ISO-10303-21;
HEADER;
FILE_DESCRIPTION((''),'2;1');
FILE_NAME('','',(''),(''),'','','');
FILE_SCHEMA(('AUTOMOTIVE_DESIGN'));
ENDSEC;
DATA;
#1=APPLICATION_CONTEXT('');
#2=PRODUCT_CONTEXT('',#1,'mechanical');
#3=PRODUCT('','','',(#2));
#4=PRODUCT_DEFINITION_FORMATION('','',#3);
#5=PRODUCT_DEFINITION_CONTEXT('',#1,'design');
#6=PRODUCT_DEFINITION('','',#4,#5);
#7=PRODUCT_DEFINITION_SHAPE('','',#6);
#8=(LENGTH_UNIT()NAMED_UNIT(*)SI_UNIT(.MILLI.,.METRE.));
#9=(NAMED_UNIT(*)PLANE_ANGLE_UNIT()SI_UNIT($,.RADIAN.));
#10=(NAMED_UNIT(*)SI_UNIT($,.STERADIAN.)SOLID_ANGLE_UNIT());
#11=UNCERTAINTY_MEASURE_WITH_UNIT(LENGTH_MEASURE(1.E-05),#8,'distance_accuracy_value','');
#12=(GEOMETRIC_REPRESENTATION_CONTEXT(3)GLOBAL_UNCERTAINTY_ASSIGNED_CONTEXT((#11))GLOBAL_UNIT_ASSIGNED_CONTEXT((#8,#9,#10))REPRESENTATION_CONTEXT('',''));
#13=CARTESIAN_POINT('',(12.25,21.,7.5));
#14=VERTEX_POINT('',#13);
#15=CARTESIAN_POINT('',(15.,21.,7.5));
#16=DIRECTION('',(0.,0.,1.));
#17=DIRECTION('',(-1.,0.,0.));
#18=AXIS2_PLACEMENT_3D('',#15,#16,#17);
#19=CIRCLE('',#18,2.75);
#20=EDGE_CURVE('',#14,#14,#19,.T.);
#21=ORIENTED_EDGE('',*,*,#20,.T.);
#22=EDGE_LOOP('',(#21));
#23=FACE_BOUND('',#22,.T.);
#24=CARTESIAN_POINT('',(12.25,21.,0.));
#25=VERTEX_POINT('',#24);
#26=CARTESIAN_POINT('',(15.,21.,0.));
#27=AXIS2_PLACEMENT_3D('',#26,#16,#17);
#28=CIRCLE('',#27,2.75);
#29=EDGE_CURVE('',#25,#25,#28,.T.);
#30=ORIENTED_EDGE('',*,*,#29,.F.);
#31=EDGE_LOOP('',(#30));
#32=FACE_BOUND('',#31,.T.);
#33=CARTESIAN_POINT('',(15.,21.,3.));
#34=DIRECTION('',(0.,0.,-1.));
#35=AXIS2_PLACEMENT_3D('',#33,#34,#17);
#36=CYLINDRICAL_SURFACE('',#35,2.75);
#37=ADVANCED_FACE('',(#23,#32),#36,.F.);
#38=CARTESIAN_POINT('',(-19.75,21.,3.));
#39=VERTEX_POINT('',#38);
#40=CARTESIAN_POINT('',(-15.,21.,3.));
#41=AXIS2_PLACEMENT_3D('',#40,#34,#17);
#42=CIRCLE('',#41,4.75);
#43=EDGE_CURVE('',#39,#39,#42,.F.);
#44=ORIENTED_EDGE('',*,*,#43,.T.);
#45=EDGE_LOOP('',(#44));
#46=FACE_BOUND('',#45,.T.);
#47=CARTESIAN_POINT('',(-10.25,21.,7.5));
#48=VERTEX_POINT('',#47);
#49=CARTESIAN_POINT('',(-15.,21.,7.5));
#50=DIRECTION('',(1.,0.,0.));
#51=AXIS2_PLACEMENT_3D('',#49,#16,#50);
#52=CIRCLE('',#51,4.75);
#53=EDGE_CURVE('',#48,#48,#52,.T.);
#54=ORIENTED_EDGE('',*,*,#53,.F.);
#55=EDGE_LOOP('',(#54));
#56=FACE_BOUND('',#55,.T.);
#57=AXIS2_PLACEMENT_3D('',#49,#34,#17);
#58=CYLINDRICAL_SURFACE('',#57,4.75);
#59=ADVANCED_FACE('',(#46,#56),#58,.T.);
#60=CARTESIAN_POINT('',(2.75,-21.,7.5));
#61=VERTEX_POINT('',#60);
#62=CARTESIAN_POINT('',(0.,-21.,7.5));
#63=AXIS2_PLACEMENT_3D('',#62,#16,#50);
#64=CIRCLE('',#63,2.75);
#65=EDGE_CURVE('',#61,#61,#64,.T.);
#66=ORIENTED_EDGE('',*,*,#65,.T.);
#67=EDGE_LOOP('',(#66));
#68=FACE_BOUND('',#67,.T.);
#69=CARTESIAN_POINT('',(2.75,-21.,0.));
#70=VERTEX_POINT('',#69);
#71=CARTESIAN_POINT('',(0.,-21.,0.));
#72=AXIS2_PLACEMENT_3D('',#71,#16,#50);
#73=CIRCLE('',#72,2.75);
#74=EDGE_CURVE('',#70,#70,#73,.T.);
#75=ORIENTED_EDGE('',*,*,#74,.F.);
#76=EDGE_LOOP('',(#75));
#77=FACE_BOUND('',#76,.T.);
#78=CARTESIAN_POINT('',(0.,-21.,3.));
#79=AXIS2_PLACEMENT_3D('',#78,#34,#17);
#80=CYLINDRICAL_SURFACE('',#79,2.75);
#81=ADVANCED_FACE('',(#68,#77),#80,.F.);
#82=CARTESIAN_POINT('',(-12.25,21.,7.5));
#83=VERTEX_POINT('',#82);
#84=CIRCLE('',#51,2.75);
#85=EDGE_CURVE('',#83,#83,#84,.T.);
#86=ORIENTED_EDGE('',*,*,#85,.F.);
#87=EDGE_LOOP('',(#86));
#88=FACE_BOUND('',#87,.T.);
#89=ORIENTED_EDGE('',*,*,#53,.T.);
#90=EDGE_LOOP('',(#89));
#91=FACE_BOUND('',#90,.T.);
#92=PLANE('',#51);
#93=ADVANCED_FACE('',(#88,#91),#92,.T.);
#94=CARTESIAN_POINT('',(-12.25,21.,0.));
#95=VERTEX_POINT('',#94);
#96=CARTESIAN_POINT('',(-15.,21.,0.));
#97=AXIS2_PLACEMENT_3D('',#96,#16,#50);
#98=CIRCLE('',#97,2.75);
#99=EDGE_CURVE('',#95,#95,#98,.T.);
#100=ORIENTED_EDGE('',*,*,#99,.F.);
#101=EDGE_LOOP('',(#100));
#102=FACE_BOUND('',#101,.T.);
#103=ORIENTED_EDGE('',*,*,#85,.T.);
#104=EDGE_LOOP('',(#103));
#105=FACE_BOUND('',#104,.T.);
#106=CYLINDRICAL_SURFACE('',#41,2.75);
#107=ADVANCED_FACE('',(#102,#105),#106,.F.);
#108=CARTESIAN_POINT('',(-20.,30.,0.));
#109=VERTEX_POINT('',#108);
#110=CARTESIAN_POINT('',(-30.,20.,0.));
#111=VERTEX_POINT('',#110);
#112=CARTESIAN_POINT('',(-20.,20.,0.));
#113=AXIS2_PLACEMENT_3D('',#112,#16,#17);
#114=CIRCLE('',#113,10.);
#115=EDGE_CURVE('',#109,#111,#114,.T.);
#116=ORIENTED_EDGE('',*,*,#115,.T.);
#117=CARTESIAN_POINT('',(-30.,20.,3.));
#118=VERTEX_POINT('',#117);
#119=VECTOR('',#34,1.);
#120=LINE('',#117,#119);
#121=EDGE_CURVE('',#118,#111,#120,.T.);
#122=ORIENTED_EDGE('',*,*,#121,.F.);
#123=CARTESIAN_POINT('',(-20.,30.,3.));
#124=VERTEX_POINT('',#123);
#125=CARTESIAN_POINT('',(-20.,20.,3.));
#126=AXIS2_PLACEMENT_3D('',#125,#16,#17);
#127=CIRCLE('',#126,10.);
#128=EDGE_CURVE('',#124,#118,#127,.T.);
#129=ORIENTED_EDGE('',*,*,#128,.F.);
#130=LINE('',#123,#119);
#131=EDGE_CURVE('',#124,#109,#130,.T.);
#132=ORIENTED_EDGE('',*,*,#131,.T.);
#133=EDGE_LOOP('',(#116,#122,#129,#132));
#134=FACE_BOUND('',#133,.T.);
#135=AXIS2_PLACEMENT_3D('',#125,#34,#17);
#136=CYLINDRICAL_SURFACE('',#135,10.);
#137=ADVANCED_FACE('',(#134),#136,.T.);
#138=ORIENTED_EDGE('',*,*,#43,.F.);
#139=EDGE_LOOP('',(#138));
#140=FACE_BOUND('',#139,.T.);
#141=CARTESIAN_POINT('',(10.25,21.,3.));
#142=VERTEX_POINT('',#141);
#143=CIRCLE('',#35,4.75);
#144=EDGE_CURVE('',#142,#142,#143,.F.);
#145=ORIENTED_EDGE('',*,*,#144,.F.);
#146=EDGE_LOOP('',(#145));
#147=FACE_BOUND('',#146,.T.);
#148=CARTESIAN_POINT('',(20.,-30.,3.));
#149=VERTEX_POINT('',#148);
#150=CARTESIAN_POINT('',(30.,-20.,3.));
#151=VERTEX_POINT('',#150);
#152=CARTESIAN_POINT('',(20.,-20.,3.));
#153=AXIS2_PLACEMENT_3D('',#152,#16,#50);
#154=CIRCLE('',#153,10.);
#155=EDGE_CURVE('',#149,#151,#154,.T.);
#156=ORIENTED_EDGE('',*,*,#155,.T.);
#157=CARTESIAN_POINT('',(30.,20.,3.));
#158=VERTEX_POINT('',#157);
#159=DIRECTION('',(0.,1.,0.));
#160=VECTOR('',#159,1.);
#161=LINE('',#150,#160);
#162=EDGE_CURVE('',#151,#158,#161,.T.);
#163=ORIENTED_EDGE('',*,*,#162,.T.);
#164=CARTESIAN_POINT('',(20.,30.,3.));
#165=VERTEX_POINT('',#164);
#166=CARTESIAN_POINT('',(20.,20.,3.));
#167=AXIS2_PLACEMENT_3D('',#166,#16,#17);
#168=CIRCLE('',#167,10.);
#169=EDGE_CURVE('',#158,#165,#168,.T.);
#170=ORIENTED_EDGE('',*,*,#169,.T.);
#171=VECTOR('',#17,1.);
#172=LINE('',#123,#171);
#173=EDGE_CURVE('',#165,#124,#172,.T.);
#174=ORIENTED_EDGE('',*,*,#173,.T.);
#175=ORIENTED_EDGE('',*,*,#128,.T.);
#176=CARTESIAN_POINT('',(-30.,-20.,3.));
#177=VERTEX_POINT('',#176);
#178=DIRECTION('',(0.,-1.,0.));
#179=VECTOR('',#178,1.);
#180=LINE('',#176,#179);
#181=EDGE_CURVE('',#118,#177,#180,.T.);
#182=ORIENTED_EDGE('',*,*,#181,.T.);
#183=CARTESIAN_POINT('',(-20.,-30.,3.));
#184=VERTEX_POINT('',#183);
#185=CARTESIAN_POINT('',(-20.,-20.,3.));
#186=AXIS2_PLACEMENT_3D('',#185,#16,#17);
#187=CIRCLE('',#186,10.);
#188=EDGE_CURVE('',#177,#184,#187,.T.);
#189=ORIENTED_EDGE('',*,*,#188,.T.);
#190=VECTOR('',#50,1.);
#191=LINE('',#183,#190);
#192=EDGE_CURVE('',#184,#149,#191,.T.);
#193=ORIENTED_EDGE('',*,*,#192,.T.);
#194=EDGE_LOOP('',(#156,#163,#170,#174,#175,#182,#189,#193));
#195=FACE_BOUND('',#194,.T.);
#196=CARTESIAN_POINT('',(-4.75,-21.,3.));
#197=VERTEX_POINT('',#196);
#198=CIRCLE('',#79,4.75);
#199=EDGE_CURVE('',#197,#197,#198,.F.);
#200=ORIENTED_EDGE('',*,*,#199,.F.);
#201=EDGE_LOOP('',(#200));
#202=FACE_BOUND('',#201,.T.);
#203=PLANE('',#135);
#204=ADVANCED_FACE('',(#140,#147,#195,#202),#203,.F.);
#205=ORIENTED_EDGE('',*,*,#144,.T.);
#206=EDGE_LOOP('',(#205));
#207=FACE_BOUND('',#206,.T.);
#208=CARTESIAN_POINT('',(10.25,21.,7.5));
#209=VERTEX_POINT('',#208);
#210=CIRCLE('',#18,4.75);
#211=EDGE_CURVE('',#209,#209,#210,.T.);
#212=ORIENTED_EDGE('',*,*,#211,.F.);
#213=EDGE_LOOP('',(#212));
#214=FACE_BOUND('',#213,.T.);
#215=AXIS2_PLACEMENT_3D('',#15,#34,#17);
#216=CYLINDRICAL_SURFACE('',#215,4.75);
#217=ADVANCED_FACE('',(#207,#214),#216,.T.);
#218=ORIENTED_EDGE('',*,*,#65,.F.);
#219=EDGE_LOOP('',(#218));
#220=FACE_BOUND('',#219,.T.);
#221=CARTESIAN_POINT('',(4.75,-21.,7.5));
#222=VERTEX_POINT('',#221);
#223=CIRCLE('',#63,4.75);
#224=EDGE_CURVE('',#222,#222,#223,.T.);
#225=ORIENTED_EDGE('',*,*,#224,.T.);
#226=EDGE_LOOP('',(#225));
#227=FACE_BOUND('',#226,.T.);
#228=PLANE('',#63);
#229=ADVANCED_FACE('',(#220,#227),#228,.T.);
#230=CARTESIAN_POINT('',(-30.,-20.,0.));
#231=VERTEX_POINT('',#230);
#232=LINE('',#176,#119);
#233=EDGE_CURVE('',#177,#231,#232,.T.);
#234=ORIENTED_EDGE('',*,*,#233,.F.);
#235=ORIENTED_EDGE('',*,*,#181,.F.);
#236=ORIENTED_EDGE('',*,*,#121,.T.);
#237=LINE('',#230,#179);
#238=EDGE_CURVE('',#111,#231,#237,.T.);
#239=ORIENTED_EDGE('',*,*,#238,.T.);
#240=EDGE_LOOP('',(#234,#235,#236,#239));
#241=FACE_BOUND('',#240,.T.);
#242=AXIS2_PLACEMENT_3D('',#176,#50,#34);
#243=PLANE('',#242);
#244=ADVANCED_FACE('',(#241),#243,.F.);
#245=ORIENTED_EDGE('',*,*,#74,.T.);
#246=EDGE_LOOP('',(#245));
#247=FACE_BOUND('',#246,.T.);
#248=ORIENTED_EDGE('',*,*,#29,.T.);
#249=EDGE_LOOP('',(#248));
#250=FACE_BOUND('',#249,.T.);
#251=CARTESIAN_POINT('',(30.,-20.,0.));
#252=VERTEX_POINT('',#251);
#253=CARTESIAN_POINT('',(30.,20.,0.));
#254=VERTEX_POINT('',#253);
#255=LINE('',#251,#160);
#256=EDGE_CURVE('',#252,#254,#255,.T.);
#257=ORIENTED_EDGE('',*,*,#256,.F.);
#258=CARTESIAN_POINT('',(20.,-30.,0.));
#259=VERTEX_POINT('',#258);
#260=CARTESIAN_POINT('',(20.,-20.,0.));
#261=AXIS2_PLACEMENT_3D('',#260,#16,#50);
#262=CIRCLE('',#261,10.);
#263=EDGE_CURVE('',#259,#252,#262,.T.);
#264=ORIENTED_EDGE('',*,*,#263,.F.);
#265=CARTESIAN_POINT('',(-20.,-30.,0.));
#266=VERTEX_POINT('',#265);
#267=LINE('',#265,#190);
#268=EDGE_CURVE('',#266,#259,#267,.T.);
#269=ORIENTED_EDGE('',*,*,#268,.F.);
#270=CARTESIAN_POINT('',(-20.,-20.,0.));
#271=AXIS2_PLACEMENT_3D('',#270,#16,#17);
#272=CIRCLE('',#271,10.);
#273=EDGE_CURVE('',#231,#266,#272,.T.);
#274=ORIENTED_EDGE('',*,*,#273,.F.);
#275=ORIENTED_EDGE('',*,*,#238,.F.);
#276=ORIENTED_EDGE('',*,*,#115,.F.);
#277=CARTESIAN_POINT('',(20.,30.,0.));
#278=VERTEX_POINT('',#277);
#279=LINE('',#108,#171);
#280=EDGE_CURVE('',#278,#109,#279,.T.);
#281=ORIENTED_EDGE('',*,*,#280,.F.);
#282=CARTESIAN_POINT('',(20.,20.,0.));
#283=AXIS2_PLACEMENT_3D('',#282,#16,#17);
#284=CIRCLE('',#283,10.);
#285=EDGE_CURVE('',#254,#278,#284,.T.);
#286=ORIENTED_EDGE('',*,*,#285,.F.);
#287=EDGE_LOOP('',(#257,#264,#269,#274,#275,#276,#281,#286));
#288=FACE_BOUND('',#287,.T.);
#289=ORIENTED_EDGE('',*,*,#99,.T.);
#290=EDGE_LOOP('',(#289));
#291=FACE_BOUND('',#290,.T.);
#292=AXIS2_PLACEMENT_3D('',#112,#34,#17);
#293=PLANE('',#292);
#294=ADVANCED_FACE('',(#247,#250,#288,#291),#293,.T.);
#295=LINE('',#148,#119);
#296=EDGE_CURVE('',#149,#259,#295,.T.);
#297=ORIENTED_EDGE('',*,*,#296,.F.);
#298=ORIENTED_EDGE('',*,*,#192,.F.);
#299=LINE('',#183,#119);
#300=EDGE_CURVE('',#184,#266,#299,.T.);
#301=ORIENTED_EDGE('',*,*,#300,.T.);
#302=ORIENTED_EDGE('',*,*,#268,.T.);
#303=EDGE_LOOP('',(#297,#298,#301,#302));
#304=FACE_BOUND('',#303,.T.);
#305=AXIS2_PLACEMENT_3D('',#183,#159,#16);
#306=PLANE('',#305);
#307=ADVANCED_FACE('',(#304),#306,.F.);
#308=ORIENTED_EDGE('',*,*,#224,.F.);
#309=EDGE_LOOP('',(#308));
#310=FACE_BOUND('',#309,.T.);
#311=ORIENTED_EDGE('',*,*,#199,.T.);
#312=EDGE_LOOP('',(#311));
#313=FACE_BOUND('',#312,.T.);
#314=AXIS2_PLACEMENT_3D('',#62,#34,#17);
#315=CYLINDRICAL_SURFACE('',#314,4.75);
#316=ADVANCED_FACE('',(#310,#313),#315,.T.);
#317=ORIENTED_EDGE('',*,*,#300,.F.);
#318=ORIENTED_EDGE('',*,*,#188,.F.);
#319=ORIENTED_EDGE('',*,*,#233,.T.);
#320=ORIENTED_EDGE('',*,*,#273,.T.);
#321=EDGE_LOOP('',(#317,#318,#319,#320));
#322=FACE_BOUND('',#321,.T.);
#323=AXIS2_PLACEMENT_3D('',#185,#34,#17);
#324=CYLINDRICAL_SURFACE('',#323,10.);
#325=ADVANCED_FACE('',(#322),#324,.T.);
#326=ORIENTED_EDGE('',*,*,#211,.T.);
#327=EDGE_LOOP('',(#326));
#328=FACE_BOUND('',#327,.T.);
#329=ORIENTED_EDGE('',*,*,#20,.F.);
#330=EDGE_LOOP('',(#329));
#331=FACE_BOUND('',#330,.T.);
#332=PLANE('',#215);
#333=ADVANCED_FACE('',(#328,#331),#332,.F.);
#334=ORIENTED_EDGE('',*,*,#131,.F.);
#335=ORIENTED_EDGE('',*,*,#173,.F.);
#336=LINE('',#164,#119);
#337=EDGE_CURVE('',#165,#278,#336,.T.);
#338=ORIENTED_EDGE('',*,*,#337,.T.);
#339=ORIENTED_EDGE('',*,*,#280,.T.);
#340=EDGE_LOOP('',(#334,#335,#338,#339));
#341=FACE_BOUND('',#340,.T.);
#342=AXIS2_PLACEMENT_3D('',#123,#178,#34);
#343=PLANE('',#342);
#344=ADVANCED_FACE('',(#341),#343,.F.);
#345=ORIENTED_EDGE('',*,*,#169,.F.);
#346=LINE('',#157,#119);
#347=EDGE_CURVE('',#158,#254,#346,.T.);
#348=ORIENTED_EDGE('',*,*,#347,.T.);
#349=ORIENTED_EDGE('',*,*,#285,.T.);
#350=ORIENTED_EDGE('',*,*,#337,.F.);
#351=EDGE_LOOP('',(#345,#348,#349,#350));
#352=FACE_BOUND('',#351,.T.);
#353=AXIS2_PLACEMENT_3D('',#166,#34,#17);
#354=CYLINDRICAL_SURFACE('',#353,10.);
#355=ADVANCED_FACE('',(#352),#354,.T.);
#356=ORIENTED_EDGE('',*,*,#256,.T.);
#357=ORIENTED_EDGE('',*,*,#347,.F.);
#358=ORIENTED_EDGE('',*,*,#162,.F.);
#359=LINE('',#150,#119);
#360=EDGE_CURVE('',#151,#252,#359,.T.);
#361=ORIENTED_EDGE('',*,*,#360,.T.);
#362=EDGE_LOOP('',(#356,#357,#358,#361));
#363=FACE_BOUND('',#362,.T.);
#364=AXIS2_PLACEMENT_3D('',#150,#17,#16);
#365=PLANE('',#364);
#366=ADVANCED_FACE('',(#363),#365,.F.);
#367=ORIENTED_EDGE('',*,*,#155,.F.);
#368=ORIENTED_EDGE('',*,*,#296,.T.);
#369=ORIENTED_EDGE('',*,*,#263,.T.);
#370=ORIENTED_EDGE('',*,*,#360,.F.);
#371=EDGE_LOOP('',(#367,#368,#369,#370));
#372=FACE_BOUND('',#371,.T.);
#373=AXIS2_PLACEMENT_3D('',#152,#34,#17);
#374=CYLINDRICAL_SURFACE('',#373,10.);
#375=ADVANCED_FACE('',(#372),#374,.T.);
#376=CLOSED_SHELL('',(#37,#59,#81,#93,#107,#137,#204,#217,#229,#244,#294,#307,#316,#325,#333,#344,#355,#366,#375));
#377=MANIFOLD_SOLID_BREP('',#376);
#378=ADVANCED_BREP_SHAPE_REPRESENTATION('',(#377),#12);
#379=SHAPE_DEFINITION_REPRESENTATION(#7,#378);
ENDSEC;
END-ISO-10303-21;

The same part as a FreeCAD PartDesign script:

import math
import FreeCAD as App
import Part
import Sketcher
from FreeCAD import Vector
Q = App.Units.Quantity

doc = App.newDocument("Part")
params = doc.addObject("Spreadsheet::Sheet", "Params")
for row, (alias, value) in enumerate([
    ("sketch1_radius", "10 mm"),
    ("sketch1_diameter", "5.5 mm"),
    ("sketch1_width", "40 mm"),
    ("pad1_length", "3 mm"),
    ("sketch2_diameter", "9.5 mm"),
    ("sketch2_diameter2", "5.5 mm"),
    ("pad2_length", "4.5 mm"),
], start=1):
    params.set(f"A{row}", alias)
    params.set(f"B{row}", "=" + value)
    params.setAlias(f"B{row}", alias)

body = doc.addObject("PartDesign::Body", "Body")

# Sketch on XY plane
sketch1 = doc.addObject("Sketcher::SketchObject", "Sketch")
body.addObject(sketch1)
sketch1.AttachmentSupport = (doc.XY_Plane, [""])
sketch1.MapMode = "FlatFace"
sketch1.addGeometry(Part.LineSegment(Vector(-20, -30, 0), Vector(20, -30, 0)), False)
sketch1.addGeometry(Part.ArcOfCircle(Part.Circle(Vector(20, -20, 0), Vector(0, 0, 1), 10), math.radians(-90), math.radians(0)), False)
sketch1.addGeometry(Part.LineSegment(Vector(30, -20, 0), Vector(30, 20, 0)), False)
sketch1.addGeometry(Part.ArcOfCircle(Part.Circle(Vector(20, 20, 0), Vector(0, 0, 1), 10), math.radians(0), math.radians(90)), False)
sketch1.addGeometry(Part.LineSegment(Vector(20, 30, 0), Vector(-20, 30, 0)), False)
sketch1.addGeometry(Part.ArcOfCircle(Part.Circle(Vector(-20, 20, 0), Vector(0, 0, 1), 10), math.radians(90), math.radians(180)), False)
sketch1.addGeometry(Part.LineSegment(Vector(-30, 20, 0), Vector(-30, -20, 0)), False)
sketch1.addGeometry(Part.ArcOfCircle(Part.Circle(Vector(-20, -20, 0), Vector(0, 0, 1), 10), math.radians(180), math.radians(270)), False)
sketch1.addGeometry(Part.Circle(Vector(0, -21, 0), Vector(0, 0, 1), 2.8), False)
sketch1.addGeometry(Part.Circle(Vector(-15, 21, 0), Vector(0, 0, 1), 2.8), False)
sketch1.addGeometry(Part.Circle(Vector(15, 21, 0), Vector(0, 0, 1), 2.8), False)
sketch1.addConstraint(Sketcher.Constraint("Tangent", 0, 2, 1, 1))
sketch1.addConstraint(Sketcher.Constraint("Tangent", 1, 2, 2, 1))
sketch1.addConstraint(Sketcher.Constraint("Tangent", 2, 2, 3, 1))
sketch1.addConstraint(Sketcher.Constraint("Tangent", 3, 2, 4, 1))
sketch1.addConstraint(Sketcher.Constraint("Tangent", 4, 2, 5, 1))
sketch1.addConstraint(Sketcher.Constraint("Tangent", 5, 2, 6, 1))
sketch1.addConstraint(Sketcher.Constraint("Tangent", 6, 2, 7, 1))
sketch1.addConstraint(Sketcher.Constraint("Tangent", 7, 2, 0, 1))
sketch1.addConstraint(Sketcher.Constraint("Horizontal", 0))
sketch1.addConstraint(Sketcher.Constraint("Vertical", 2))
sketch1.addConstraint(Sketcher.Constraint("Horizontal", 4))
sketch1.addConstraint(Sketcher.Constraint("Vertical", 6))
sketch1.addConstraint(Sketcher.Constraint("Equal", 1, 3))
sketch1.addConstraint(Sketcher.Constraint("Equal", 3, 5))
sketch1.addConstraint(Sketcher.Constraint("Equal", 5, 7))
sketch1.addConstraint(Sketcher.Constraint("Equal", 8, 9))
sketch1.addConstraint(Sketcher.Constraint("Equal", 9, 10))
sketch1.addConstraint(Sketcher.Constraint("Symmetric", 1, 3, 5, 3, -1, 1))
sketch1.addConstraint(Sketcher.Constraint("Symmetric", 9, 3, 10, 3, -2))
sketch1.addConstraint(Sketcher.Constraint("PointOnObject", 8, 3, -2))
sketch1.addConstraint(Sketcher.Constraint("Equal", 4, 2))
sketch1.addConstraint(Sketcher.Constraint("Radius", 1, Q("10 mm")))
sketch1.addConstraint(Sketcher.Constraint("Diameter", 8, Q("5.5 mm")))
sketch1.addConstraint(Sketcher.Constraint("DistanceX", 0, 1, 0, 2, Q("40 mm")))
sketch1.addConstraint(Sketcher.Constraint("DistanceY", 8, 3, -1, 1, Q("21 mm")))
sketch1.addConstraint(Sketcher.Constraint("DistanceX", 9, 3, -1, 1, Q("15 mm")))
sketch1.addConstraint(Sketcher.Constraint("DistanceY", -1, 1, 9, 3, Q("21 mm")))
sketch1.setExpression("Constraints[21]", "Params.sketch1_radius")
sketch1.setExpression("Constraints[22]", "Params.sketch1_diameter")
sketch1.setExpression("Constraints[23]", "Params.sketch1_width")
pad1 = doc.addObject("PartDesign::Pad", "Pad")
body.addObject(pad1)
pad1.Profile = sketch1
pad1.setExpression("Length", "Params.pad1_length")

# Sketch on XY plane
sketch2 = doc.addObject("Sketcher::SketchObject", "Sketch001")
body.addObject(sketch2)
sketch2.AttachmentSupport = (doc.XY_Plane, [""])
sketch2.MapMode = "FlatFace"
sketch2.AttachmentOffset = App.Placement(Vector(0, 0, 3), App.Rotation())
sketch2.addGeometry(Part.Circle(Vector(-15, 21, 0), Vector(0, 0, 1), 4.8), False)
sketch2.addGeometry(Part.Circle(Vector(-15, 21, 0), Vector(0, 0, 1), 2.8), False)
sketch2.addGeometry(Part.Circle(Vector(0, -21, 0), Vector(0, 0, 1), 4.8), False)
sketch2.addGeometry(Part.Circle(Vector(0, -21, 0), Vector(0, 0, 1), 2.8), False)
sketch2.addGeometry(Part.Circle(Vector(15, 21, 0), Vector(0, 0, 1), 4.8), False)
sketch2.addGeometry(Part.Circle(Vector(15, 21, 0), Vector(0, 0, 1), 2.8), False)
sketch2.addConstraint(Sketcher.Constraint("Coincident", 1, 3, 0, 3))
sketch2.addConstraint(Sketcher.Constraint("Coincident", 3, 3, 2, 3))
sketch2.addConstraint(Sketcher.Constraint("Coincident", 5, 3, 4, 3))
sketch2.addConstraint(Sketcher.Constraint("Equal", 0, 2))
sketch2.addConstraint(Sketcher.Constraint("Equal", 1, 3))
sketch2.addConstraint(Sketcher.Constraint("Equal", 2, 4))
sketch2.addConstraint(Sketcher.Constraint("Equal", 3, 5))
sketch2.addConstraint(Sketcher.Constraint("Symmetric", 0, 3, 4, 3, -2))
sketch2.addConstraint(Sketcher.Constraint("PointOnObject", 2, 3, -2))
sketch2.addConstraint(Sketcher.Constraint("Diameter", 0, Q("9.5 mm")))
sketch2.addConstraint(Sketcher.Constraint("Diameter", 1, Q("5.5 mm")))
sketch2.addConstraint(Sketcher.Constraint("DistanceX", 0, 3, -1, 1, Q("15 mm")))
sketch2.addConstraint(Sketcher.Constraint("DistanceY", -1, 1, 0, 3, Q("21 mm")))
sketch2.addConstraint(Sketcher.Constraint("DistanceY", 2, 3, -1, 1, Q("21 mm")))
sketch2.setExpression("Constraints[9]", "Params.sketch2_diameter")
sketch2.setExpression("Constraints[10]", "Params.sketch2_diameter2")
pad2 = doc.addObject("PartDesign::Pad", "Pad001")
body.addObject(pad2)
pad2.Profile = sketch2
pad2.setExpression("Length", "Params.pad2_length")

doc.recompute()
